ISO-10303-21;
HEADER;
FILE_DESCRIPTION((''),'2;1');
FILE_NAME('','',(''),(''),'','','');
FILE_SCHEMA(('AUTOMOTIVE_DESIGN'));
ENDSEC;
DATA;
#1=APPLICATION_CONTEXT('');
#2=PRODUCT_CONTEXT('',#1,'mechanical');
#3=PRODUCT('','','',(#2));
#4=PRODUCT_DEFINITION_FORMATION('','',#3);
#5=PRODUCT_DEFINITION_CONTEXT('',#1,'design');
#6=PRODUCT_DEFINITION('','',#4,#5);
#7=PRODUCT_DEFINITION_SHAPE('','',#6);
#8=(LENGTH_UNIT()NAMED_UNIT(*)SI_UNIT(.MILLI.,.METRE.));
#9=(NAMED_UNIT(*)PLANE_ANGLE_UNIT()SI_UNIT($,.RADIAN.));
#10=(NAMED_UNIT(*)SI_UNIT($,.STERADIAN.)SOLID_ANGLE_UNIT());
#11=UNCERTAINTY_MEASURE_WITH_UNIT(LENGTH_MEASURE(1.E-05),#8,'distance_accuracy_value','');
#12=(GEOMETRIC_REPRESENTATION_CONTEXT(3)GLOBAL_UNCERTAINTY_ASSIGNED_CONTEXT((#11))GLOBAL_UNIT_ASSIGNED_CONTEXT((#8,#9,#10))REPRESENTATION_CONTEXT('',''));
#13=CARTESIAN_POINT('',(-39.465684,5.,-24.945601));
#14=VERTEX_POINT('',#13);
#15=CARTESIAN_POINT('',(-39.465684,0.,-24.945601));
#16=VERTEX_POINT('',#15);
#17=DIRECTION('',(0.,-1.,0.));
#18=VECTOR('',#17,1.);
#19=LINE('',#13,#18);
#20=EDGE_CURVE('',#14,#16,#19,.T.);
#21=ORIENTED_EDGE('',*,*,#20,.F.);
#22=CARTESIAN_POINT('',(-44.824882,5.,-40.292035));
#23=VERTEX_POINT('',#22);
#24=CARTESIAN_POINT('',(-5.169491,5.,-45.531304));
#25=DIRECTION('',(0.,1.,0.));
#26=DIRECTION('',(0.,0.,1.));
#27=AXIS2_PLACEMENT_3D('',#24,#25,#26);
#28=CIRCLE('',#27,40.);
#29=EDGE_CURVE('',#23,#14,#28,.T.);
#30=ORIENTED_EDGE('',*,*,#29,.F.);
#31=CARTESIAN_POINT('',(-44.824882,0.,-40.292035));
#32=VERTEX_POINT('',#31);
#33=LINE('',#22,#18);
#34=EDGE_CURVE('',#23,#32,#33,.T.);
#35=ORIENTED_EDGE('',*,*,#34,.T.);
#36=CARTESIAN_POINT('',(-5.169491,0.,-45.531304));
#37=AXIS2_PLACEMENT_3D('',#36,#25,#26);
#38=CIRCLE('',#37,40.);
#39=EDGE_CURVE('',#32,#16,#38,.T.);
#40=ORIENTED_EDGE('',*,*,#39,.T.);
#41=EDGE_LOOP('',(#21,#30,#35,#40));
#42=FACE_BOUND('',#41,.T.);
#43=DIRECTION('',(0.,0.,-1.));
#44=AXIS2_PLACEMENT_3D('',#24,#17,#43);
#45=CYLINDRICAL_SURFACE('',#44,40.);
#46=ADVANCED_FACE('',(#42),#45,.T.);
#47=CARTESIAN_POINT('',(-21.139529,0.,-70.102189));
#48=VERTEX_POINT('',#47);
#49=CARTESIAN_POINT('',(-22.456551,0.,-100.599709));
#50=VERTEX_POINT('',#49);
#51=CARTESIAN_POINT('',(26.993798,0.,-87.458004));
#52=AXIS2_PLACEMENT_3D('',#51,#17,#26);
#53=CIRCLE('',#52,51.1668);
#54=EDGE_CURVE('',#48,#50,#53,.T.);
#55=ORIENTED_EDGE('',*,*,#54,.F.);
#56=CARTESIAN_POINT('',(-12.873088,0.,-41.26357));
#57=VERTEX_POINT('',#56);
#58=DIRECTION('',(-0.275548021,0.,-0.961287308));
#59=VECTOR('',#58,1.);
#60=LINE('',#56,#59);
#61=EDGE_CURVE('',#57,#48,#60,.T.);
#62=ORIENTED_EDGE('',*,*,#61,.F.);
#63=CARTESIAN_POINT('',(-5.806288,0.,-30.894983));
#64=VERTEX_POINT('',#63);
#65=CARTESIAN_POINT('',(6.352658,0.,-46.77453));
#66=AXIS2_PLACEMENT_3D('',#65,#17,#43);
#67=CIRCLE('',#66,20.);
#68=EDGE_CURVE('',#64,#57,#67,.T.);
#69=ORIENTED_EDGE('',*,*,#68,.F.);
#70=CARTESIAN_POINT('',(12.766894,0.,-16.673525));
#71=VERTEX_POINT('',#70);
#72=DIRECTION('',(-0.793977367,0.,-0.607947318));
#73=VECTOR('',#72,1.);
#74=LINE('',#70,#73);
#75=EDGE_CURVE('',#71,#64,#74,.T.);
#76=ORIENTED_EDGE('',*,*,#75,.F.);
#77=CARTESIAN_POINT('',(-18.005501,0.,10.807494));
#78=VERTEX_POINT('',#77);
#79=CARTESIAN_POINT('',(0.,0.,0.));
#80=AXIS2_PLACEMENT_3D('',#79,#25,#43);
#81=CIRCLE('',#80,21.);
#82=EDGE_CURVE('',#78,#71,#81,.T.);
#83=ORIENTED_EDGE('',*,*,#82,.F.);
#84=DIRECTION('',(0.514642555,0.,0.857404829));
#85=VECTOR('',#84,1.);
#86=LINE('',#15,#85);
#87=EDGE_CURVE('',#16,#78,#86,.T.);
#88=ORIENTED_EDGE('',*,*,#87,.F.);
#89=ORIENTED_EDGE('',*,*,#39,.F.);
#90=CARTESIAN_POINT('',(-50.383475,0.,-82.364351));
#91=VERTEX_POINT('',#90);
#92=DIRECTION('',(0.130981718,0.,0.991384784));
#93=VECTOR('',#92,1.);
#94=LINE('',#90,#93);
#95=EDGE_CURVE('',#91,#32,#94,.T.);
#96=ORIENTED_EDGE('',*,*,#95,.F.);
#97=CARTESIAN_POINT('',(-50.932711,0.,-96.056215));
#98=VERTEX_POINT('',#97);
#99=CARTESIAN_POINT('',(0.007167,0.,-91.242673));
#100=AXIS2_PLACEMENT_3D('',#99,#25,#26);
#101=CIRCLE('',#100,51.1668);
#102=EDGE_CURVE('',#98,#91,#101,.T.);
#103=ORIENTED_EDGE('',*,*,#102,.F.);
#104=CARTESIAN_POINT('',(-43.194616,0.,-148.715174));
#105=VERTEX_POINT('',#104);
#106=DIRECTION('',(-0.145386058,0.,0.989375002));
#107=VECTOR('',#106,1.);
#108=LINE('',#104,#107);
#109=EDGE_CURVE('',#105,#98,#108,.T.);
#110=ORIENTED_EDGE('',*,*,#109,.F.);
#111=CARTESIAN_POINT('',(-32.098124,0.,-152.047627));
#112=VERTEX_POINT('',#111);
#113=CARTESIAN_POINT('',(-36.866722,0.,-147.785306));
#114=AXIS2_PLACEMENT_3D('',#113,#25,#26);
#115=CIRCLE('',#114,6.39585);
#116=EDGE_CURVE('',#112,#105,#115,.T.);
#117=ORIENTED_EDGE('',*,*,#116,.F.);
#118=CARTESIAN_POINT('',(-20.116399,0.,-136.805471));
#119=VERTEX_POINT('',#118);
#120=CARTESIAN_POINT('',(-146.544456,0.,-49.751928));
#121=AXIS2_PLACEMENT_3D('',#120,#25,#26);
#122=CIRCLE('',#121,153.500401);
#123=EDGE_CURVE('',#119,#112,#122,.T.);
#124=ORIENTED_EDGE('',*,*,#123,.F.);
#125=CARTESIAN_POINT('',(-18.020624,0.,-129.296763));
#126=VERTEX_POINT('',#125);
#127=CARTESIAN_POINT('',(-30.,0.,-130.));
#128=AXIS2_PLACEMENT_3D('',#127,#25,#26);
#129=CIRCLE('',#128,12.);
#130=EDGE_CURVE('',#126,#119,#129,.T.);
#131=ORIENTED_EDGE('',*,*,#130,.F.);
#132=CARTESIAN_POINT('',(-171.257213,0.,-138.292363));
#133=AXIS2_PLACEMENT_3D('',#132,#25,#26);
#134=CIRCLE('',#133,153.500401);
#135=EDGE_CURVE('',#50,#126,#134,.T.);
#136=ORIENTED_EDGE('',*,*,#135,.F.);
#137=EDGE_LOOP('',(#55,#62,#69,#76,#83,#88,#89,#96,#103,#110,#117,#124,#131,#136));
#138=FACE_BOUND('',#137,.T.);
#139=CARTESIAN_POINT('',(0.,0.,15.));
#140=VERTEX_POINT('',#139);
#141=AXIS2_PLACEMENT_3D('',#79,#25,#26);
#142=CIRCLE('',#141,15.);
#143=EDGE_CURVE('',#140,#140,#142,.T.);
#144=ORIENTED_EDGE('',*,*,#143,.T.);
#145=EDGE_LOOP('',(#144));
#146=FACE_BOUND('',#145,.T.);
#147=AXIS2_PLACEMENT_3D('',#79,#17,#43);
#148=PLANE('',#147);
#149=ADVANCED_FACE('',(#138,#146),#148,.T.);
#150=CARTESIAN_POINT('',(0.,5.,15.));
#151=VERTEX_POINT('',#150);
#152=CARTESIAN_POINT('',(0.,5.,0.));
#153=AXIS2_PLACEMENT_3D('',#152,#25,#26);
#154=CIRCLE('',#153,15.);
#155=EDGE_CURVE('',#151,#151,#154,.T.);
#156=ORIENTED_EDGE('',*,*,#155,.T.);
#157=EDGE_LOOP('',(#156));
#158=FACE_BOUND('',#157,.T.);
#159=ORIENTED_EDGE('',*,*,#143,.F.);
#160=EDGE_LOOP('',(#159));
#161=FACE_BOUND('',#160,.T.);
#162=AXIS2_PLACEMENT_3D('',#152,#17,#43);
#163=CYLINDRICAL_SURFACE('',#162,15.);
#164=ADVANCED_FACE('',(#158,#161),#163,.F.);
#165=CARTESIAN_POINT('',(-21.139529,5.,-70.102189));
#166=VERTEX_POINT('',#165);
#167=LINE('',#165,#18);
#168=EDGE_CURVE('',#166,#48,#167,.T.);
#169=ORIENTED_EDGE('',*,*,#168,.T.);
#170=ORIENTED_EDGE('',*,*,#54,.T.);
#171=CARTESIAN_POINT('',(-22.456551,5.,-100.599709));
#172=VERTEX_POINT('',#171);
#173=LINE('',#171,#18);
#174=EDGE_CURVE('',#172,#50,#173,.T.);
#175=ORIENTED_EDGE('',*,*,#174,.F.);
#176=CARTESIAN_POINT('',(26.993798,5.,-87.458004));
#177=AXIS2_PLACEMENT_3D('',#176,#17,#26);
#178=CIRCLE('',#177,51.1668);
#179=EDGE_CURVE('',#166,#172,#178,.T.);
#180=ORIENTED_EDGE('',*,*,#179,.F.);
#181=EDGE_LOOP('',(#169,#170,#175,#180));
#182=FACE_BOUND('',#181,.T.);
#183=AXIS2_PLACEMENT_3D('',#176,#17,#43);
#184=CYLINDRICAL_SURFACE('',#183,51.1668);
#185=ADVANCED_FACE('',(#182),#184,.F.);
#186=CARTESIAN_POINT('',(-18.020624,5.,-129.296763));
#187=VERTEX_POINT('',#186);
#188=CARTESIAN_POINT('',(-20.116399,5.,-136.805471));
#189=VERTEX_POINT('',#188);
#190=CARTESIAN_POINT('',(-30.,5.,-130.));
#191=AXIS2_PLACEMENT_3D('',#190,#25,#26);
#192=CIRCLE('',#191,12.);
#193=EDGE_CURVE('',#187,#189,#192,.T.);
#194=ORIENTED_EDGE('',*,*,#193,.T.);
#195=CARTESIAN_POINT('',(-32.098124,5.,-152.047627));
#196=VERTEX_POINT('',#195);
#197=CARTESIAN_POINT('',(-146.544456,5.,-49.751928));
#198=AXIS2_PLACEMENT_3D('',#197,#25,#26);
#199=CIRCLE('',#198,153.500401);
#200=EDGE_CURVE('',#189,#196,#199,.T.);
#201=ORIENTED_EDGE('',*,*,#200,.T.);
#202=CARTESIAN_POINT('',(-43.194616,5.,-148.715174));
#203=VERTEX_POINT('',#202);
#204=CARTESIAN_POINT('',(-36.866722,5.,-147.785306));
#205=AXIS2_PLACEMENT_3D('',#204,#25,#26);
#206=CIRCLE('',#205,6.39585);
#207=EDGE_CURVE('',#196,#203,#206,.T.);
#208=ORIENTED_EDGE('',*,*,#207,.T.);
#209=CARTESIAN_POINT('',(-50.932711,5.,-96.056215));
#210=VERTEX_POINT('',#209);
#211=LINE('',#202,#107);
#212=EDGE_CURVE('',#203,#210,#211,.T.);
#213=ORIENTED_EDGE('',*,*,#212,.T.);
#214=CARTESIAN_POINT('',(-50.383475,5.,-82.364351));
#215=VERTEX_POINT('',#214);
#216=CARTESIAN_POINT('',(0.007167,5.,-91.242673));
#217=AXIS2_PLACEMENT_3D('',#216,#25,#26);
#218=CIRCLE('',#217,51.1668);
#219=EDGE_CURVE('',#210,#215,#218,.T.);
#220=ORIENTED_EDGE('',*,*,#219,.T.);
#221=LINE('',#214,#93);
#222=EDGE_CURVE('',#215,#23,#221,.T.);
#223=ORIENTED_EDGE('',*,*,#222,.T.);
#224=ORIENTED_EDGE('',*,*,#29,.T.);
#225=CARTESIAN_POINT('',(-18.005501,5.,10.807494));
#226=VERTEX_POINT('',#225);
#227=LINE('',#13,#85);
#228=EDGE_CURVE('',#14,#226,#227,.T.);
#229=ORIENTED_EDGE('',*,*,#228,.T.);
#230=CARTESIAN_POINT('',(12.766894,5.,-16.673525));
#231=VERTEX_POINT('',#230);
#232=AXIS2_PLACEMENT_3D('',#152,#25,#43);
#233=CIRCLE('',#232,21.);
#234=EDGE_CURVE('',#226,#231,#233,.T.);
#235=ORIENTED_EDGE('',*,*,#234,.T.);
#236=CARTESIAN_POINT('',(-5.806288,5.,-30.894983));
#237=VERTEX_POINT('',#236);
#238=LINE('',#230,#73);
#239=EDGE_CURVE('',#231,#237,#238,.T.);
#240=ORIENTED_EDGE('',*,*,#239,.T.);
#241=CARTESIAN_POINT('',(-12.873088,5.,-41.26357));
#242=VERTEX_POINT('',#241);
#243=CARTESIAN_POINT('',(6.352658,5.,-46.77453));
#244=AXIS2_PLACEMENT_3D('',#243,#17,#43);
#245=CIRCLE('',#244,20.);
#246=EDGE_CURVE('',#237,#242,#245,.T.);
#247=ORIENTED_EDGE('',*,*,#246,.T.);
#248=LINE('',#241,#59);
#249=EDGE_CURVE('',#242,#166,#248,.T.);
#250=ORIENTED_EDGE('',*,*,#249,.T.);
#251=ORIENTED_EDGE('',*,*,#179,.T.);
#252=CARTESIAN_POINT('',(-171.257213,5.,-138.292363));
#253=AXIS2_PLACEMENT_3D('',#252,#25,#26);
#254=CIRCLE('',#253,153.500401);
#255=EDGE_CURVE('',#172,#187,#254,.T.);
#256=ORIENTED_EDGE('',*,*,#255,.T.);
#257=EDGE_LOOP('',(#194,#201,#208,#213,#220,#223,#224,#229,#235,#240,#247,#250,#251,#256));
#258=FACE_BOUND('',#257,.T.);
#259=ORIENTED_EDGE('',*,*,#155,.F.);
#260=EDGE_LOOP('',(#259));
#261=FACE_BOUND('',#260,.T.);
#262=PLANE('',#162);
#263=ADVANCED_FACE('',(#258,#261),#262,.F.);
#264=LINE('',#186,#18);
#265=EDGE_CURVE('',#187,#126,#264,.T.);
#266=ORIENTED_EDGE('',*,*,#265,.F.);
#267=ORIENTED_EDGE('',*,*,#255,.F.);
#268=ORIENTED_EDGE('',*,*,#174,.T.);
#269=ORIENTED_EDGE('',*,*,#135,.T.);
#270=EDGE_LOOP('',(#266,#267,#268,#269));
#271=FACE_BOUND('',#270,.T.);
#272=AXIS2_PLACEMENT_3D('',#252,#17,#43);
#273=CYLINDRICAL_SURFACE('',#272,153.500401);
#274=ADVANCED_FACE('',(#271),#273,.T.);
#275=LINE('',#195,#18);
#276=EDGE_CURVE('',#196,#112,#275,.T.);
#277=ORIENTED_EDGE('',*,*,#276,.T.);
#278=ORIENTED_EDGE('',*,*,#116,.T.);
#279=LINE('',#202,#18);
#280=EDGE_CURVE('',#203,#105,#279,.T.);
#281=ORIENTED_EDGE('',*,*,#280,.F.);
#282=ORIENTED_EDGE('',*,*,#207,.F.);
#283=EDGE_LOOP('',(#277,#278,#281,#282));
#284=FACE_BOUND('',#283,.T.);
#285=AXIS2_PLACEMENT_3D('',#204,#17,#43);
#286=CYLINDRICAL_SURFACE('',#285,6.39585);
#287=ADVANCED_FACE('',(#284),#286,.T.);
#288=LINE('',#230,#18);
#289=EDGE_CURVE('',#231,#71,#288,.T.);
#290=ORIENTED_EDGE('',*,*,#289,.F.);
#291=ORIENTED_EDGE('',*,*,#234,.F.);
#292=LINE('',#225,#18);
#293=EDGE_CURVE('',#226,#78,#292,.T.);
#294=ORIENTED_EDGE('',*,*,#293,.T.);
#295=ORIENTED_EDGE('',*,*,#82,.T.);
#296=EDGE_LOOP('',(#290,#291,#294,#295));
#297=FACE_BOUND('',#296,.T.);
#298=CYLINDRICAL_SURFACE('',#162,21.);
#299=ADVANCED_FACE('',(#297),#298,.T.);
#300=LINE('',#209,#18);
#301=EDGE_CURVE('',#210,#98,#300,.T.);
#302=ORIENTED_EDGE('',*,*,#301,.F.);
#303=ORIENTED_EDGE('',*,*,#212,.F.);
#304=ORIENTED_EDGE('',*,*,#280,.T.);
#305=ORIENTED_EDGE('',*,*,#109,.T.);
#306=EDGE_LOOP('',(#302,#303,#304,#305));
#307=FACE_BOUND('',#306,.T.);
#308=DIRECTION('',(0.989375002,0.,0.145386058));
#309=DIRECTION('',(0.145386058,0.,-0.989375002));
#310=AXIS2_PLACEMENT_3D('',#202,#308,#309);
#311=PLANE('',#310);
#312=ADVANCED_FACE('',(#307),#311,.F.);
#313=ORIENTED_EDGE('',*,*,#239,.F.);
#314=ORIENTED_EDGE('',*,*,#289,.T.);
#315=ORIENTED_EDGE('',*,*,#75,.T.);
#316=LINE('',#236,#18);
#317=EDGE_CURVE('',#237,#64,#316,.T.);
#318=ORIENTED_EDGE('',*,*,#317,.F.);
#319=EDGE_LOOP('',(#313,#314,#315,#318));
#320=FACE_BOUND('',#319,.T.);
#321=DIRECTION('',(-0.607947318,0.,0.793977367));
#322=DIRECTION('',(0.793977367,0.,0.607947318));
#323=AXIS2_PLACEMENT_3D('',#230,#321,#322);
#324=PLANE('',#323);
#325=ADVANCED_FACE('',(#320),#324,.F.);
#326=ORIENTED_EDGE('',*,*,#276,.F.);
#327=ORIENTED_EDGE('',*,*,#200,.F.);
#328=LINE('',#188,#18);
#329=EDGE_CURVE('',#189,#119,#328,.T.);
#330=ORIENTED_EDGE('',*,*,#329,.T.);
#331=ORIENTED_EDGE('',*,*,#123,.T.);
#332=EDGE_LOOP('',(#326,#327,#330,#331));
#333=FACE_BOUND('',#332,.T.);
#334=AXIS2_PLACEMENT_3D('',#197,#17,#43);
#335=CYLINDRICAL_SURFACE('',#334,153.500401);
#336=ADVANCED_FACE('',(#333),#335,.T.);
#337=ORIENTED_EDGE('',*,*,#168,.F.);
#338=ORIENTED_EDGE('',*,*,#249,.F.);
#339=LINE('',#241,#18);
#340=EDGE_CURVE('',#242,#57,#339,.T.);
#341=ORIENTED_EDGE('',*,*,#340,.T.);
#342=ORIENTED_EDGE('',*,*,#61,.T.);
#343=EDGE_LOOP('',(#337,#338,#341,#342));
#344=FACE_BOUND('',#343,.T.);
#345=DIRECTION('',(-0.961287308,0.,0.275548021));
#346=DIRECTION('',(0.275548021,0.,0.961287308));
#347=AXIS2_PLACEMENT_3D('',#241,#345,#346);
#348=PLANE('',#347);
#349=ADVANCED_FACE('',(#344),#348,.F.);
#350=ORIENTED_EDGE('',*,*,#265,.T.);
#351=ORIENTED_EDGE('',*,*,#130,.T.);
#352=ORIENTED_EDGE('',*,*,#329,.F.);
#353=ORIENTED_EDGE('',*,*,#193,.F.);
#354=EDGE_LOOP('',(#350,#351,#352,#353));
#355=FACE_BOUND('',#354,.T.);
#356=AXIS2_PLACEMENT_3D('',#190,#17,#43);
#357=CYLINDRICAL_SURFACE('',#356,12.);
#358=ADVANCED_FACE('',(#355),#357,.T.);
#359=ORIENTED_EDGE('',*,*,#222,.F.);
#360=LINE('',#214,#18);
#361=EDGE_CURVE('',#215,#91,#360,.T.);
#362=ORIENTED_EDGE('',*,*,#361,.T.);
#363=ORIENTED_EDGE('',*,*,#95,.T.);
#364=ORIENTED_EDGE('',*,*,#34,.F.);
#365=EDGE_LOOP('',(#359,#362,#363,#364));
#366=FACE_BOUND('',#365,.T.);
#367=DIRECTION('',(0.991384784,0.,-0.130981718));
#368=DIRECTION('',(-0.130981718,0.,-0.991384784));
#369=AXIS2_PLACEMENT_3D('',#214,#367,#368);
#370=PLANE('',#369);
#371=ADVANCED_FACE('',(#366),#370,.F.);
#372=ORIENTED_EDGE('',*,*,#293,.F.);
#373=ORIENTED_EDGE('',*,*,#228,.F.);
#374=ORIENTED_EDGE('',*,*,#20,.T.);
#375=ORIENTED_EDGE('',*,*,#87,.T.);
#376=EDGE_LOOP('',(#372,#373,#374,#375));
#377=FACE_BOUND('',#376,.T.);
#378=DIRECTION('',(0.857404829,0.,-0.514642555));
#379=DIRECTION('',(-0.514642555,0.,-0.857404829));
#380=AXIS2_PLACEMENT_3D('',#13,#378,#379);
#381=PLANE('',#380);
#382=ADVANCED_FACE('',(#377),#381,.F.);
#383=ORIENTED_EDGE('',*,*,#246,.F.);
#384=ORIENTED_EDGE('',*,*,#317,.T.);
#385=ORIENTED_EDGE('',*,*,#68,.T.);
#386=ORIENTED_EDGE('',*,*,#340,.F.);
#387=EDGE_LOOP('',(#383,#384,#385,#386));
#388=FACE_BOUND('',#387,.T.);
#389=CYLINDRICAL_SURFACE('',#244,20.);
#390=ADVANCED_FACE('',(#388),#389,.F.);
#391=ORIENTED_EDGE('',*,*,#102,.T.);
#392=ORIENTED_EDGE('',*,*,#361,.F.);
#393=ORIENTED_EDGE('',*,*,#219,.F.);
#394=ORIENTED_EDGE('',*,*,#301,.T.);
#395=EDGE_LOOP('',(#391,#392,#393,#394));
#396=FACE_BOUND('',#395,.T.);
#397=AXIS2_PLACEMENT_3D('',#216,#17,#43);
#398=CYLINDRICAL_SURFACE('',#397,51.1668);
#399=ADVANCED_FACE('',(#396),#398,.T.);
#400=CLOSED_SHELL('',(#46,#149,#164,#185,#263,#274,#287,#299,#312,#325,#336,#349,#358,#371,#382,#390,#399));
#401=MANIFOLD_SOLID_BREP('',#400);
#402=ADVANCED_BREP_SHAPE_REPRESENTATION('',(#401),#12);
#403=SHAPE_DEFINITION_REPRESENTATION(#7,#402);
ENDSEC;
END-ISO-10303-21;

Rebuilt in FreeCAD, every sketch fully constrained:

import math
import FreeCAD as App
import Part
import Sketcher
from FreeCAD import Vector
Q = App.Units.Quantity

doc = App.newDocument("Part")
body = doc.addObject("PartDesign::Body", "Body")

# Sketch on XZ plane
sketch1 = body.newObject("Sketcher::SketchObject", "Sketch")
sketch1.AttachmentSupport = (doc.getObject("XZ_Plane"), [""])
sketch1.MapMode = "FlatFace"
sketch1.addGeometry([
    Part.LineSegment(Vector(12.766894, -16.673525, 0), Vector(-5.806288, -30.894983, 0)),  # 0
    Part.ArcOfCircle(Part.Circle(Vector(6.352658, -46.77453, 0), Vector(0, 0, 1), 20), math.radians(127.441228), math.radians(164.005325)),  # 1
    Part.LineSegment(Vector(-12.873088, -41.26357, 0), Vector(-21.139529, -70.102189, 0)),  # 2
    Part.ArcOfCircle(Part.Circle(Vector(26.993798, -87.458004, 0), Vector(0, 0, 1), 51.1668), math.radians(160.171815), math.radians(194.882669)),  # 3
    Part.ArcOfCircle(Part.Circle(Vector(-171.257212, -138.292363, 0), Vector(0, 0, 1), 153.500401), math.radians(3.359636), math.radians(14.214582)),  # 4
    Part.ArcOfCircle(Part.Circle(Vector(-30, -130, 0), Vector(0, 0, 1), 12), math.radians(-34.549817), math.radians(3.359636)),  # 5
    Part.ArcOfCircle(Part.Circle(Vector(-146.544456, -49.751928, 0), Vector(0, 0, 1), 153.500401), math.radians(-41.791338), math.radians(-34.549817)),  # 6
    Part.ArcOfCircle(Part.Circle(Vector(-36.866722, -147.785306, 0), Vector(0, 0, 1), 6.39585), math.radians(-171.640364), math.radians(-41.791338)),  # 7
    Part.LineSegment(Vector(-43.194616, -148.715174, 0), Vector(-50.932711, -96.056215, 0)),  # 8
    Part.ArcOfCircle(Part.Circle(Vector(0.007167, -91.242673, 0), Vector(0, 0, 1), 51.1668), math.radians(170.007618), math.radians(185.398111)),  # 9
    Part.LineSegment(Vector(-50.383475, -82.364351, 0), Vector(-44.824882, -40.292035, 0)),  # 10
    Part.ArcOfCircle(Part.Circle(Vector(-5.169491, -45.531304, 0), Vector(0, 0, 1), 40), math.radians(149.026434), math.radians(172.473674)),  # 11
    Part.LineSegment(Vector(-39.465684, -24.945601, 0), Vector(-18.005501, 10.807494, 0)),  # 12
    Part.ArcOfCircle(Part.Circle(Vector(0, 0, 0), Vector(0, 0, 1), 21), math.radians(-52.558772), math.radians(149.026434)),  # 13
    Part.Circle(Vector(0, 0, 0), Vector(0, 0, 1), 15),  # 14
], False)
sketch1.addConstraint([
    Sketcher.Constraint("Coincident", 0, 2, 1, 1),
    Sketcher.Constraint("Coincident", 1, 2, 2, 1),
    Sketcher.Constraint("Coincident", 2, 2, 3, 1),
    Sketcher.Constraint("Coincident", 3, 2, 4, 2),
    Sketcher.Constraint("Coincident", 4, 1, 5, 2),
    Sketcher.Constraint("Coincident", 5, 1, 6, 2),
    Sketcher.Constraint("Coincident", 6, 1, 7, 2),
    Sketcher.Constraint("Coincident", 7, 1, 8, 1),
    Sketcher.Constraint("Coincident", 8, 2, 9, 2),
    Sketcher.Constraint("Coincident", 9, 1, 10, 1),
    Sketcher.Constraint("Coincident", 10, 2, 11, 2),
    Sketcher.Constraint("Coincident", 11, 1, 12, 1),
    Sketcher.Constraint("Coincident", 12, 2, 13, 2),
    Sketcher.Constraint("Coincident", 13, 1, 0, 1),
    Sketcher.Constraint("Coincident", 13, 3, -1, 1),
    Sketcher.Constraint("Coincident", 14, 3, -1, 1),
    Sketcher.Constraint("Diameter", 14, Q("30 mm")),
    Sketcher.Constraint("Radius", 1, Q("20 mm")),
    Sketcher.Constraint("Radius", 5, Q("12 mm")),
    Sketcher.Constraint("Radius", 11, Q("40 mm")),
    Sketcher.Constraint("Radius", 13, Q("21 mm")),
    Sketcher.Constraint("Distance", 2, Q("30 mm")),
    Sketcher.Constraint("DistanceX", 5, 3, -1, 1, Q("30 mm")),
    Sketcher.Constraint("DistanceY", 5, 3, -1, 1, Q("130 mm")),
    Sketcher.Constraint("Radius", 3, Q("51.1668 mm")),
    Sketcher.Constraint("Radius", 4, Q("153.500401 mm")),
    Sketcher.Constraint("Radius", 6, Q("153.500401 mm")),
    Sketcher.Constraint("Radius", 9, Q("51.1668 mm")),
    Sketcher.Constraint("Radius", 7, Q("6.39585 mm")),
    Sketcher.Constraint("Distance", 12, Q("41.6992 mm")),
    Sketcher.Constraint("DistanceX", -1, 1, 3, 3, Q("26.993798 mm")),
    Sketcher.Constraint("DistanceX", 5, 1, -1, 1, Q("20.116399 mm")),
    Sketcher.Constraint("DistanceY", 11, 1, -1, 1, Q("24.945601 mm")),
    Sketcher.Constraint("DistanceX", 12, 2, -1, 1, Q("18.005501 mm")),
    Sketcher.Constraint("DistanceY", 3, 3, 11, 3, Q("41.926701 mm")),
    Sketcher.Constraint("DistanceX", 1, 2, 0, 2, Q("7.0668 mm")),
    Sketcher.Constraint("DistanceX", 6, 1, 4, 1, Q("14.077501 mm")),
    Sketcher.Constraint("DistanceX", 10, 2, 11, 1, Q("5.359198 mm")),
    Sketcher.Constraint("Distance", 8, Q("53.224469 mm")),
    Sketcher.Constraint("Distance", 10, Q("42.437928 mm")),
    Sketcher.Constraint("DistanceX", -1, 1, 1, 3, Q("6.352658 mm")),
    Sketcher.Constraint("DistanceY", 1, 3, -1, 1, Q("46.77453 mm")),
    Sketcher.Constraint("DistanceX", 7, 3, -1, 1, Q("36.866722 mm")),
    Sketcher.Constraint("DistanceX", 11, 3, -1, 1, Q("5.169491 mm")),
    Sketcher.Constraint("DistanceX", 0, 2, -1, 1, Q("5.806288 mm")),
    Sketcher.Constraint("DistanceX", 3, 2, -1, 1, Q("22.456551 mm")),
    Sketcher.Constraint("DistanceX", 8, 2, -1, 1, Q("50.932711 mm")),
    Sketcher.Constraint("DistanceY", 7, 3, 6, 3, Q("98.033379 mm")),
    Sketcher.Constraint("DistanceX", 9, 3, 3, 3, Q("26.986631 mm")),
    Sketcher.Constraint("DistanceY", 9, 3, 3, 3, Q("3.784669 mm")),
    Sketcher.Constraint("DistanceX", 4, 1, 9, 3, Q("18.027791 mm")),
    Sketcher.Constraint("DistanceX", 0, 2, 13, 1, Q("18.573182 mm")),
])
pad1 = body.newObject("PartDesign::Pad", "Pad")
pad1.Profile = sketch1
pad1.Length = 5
pad1.Reversed = True

doc.recompute()
